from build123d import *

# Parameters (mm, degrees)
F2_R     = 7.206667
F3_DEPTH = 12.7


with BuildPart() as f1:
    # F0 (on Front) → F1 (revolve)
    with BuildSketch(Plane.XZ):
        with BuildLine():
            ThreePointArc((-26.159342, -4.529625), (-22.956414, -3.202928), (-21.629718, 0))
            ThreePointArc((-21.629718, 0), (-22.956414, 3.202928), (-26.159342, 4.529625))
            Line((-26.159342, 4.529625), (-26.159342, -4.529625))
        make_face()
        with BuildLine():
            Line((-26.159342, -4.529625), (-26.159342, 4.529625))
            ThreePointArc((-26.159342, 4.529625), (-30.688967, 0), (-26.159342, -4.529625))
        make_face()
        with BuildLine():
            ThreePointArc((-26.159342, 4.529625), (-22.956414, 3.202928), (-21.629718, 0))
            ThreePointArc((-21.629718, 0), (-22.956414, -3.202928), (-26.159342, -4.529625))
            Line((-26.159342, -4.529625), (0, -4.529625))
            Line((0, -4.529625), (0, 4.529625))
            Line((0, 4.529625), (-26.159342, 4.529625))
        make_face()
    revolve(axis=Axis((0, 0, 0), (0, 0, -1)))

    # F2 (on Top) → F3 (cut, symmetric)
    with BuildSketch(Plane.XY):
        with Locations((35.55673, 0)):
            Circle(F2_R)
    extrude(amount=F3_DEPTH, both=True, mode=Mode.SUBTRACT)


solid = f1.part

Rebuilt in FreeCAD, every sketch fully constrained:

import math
import FreeCAD as App
import Part
import Sketcher

V = App.Vector
Q = App.Units.Quantity

doc = App.newDocument("Part")
body = doc.addObject("PartDesign::Body", "Body")

# Sketch on XZ plane
sketch1 = doc.addObject("Sketcher::SketchObject", "Sketch")
body.addObject(sketch1)
sketch1.AttachmentSupport = (doc.XZ_Plane, [""])
sketch1.MapMode = "FlatFace"
sketch1.addGeometry([
    Part.ArcOfCircle(Part.Circle(V(-26.2, 0, 0), V(0, 0, 1), 4.5), math.radians(90), math.radians(270)),
    Part.LineSegment(V(-26.2, -4.5, 0), V(0, -4.5, 0)),
    Part.LineSegment(V(0, -4.5, 0), V(0, 4.5, 0)),
    Part.LineSegment(V(0, 4.5, 0), V(-26.2, 4.5, 0)),
], False)
sketch1.addConstraint([
    Sketcher.Constraint("Tangent", 0, 2, 1, 1),
    Sketcher.Constraint("Coincident", 1, 2, 2, 1),
    Sketcher.Constraint("Coincident", 2, 2, 3, 1),
    Sketcher.Constraint("Tangent", 3, 2, 0, 1),
    Sketcher.Constraint("Horizontal", 1),
    Sketcher.Constraint("Vertical", 2),
    Sketcher.Constraint("Horizontal", 3),
    Sketcher.Constraint("Symmetric", 1, 2, 2, 2, -1, 1),
    Sketcher.Constraint("Radius", 0, Q("4.529625 mm")),
    Sketcher.Constraint("DistanceX", 1, 1, 1, 2, Q("26.159342 mm")),
])
revolution = doc.addObject("PartDesign::Revolution", "Revolution")
body.addObject(revolution)
revolution.Profile = sketch1
revolution.ReferenceAxis = (sketch1, ["V_Axis"])
revolution.Angle = 360

# Sketch on XY plane
sketch2 = doc.addObject("Sketcher::SketchObject", "Sketch001")
body.addObject(sketch2)
sketch2.AttachmentSupport = (doc.XY_Plane, [""])
sketch2.MapMode = "FlatFace"
sketch2.addGeometry(Part.Circle(V(36, 0, 0), V(0, 0, 1), 7), False)
sketch2.addConstraint([
    Sketcher.Constraint("PointOnObject", 0, 3, -1),
    Sketcher.Constraint("Diameter", 0, Q("14.413334 mm")),
    Sketcher.Constraint("DistanceX", -1, 1, 0, 3, Q("35.55673 mm")),
])
pocket1 = doc.addObject("PartDesign::Pocket", "Pocket")
body.addObject(pocket1)
pocket1.Profile = sketch2
pocket1.Length = Q("1 in")
pocket1.Midplane = True

doc.recompute()
